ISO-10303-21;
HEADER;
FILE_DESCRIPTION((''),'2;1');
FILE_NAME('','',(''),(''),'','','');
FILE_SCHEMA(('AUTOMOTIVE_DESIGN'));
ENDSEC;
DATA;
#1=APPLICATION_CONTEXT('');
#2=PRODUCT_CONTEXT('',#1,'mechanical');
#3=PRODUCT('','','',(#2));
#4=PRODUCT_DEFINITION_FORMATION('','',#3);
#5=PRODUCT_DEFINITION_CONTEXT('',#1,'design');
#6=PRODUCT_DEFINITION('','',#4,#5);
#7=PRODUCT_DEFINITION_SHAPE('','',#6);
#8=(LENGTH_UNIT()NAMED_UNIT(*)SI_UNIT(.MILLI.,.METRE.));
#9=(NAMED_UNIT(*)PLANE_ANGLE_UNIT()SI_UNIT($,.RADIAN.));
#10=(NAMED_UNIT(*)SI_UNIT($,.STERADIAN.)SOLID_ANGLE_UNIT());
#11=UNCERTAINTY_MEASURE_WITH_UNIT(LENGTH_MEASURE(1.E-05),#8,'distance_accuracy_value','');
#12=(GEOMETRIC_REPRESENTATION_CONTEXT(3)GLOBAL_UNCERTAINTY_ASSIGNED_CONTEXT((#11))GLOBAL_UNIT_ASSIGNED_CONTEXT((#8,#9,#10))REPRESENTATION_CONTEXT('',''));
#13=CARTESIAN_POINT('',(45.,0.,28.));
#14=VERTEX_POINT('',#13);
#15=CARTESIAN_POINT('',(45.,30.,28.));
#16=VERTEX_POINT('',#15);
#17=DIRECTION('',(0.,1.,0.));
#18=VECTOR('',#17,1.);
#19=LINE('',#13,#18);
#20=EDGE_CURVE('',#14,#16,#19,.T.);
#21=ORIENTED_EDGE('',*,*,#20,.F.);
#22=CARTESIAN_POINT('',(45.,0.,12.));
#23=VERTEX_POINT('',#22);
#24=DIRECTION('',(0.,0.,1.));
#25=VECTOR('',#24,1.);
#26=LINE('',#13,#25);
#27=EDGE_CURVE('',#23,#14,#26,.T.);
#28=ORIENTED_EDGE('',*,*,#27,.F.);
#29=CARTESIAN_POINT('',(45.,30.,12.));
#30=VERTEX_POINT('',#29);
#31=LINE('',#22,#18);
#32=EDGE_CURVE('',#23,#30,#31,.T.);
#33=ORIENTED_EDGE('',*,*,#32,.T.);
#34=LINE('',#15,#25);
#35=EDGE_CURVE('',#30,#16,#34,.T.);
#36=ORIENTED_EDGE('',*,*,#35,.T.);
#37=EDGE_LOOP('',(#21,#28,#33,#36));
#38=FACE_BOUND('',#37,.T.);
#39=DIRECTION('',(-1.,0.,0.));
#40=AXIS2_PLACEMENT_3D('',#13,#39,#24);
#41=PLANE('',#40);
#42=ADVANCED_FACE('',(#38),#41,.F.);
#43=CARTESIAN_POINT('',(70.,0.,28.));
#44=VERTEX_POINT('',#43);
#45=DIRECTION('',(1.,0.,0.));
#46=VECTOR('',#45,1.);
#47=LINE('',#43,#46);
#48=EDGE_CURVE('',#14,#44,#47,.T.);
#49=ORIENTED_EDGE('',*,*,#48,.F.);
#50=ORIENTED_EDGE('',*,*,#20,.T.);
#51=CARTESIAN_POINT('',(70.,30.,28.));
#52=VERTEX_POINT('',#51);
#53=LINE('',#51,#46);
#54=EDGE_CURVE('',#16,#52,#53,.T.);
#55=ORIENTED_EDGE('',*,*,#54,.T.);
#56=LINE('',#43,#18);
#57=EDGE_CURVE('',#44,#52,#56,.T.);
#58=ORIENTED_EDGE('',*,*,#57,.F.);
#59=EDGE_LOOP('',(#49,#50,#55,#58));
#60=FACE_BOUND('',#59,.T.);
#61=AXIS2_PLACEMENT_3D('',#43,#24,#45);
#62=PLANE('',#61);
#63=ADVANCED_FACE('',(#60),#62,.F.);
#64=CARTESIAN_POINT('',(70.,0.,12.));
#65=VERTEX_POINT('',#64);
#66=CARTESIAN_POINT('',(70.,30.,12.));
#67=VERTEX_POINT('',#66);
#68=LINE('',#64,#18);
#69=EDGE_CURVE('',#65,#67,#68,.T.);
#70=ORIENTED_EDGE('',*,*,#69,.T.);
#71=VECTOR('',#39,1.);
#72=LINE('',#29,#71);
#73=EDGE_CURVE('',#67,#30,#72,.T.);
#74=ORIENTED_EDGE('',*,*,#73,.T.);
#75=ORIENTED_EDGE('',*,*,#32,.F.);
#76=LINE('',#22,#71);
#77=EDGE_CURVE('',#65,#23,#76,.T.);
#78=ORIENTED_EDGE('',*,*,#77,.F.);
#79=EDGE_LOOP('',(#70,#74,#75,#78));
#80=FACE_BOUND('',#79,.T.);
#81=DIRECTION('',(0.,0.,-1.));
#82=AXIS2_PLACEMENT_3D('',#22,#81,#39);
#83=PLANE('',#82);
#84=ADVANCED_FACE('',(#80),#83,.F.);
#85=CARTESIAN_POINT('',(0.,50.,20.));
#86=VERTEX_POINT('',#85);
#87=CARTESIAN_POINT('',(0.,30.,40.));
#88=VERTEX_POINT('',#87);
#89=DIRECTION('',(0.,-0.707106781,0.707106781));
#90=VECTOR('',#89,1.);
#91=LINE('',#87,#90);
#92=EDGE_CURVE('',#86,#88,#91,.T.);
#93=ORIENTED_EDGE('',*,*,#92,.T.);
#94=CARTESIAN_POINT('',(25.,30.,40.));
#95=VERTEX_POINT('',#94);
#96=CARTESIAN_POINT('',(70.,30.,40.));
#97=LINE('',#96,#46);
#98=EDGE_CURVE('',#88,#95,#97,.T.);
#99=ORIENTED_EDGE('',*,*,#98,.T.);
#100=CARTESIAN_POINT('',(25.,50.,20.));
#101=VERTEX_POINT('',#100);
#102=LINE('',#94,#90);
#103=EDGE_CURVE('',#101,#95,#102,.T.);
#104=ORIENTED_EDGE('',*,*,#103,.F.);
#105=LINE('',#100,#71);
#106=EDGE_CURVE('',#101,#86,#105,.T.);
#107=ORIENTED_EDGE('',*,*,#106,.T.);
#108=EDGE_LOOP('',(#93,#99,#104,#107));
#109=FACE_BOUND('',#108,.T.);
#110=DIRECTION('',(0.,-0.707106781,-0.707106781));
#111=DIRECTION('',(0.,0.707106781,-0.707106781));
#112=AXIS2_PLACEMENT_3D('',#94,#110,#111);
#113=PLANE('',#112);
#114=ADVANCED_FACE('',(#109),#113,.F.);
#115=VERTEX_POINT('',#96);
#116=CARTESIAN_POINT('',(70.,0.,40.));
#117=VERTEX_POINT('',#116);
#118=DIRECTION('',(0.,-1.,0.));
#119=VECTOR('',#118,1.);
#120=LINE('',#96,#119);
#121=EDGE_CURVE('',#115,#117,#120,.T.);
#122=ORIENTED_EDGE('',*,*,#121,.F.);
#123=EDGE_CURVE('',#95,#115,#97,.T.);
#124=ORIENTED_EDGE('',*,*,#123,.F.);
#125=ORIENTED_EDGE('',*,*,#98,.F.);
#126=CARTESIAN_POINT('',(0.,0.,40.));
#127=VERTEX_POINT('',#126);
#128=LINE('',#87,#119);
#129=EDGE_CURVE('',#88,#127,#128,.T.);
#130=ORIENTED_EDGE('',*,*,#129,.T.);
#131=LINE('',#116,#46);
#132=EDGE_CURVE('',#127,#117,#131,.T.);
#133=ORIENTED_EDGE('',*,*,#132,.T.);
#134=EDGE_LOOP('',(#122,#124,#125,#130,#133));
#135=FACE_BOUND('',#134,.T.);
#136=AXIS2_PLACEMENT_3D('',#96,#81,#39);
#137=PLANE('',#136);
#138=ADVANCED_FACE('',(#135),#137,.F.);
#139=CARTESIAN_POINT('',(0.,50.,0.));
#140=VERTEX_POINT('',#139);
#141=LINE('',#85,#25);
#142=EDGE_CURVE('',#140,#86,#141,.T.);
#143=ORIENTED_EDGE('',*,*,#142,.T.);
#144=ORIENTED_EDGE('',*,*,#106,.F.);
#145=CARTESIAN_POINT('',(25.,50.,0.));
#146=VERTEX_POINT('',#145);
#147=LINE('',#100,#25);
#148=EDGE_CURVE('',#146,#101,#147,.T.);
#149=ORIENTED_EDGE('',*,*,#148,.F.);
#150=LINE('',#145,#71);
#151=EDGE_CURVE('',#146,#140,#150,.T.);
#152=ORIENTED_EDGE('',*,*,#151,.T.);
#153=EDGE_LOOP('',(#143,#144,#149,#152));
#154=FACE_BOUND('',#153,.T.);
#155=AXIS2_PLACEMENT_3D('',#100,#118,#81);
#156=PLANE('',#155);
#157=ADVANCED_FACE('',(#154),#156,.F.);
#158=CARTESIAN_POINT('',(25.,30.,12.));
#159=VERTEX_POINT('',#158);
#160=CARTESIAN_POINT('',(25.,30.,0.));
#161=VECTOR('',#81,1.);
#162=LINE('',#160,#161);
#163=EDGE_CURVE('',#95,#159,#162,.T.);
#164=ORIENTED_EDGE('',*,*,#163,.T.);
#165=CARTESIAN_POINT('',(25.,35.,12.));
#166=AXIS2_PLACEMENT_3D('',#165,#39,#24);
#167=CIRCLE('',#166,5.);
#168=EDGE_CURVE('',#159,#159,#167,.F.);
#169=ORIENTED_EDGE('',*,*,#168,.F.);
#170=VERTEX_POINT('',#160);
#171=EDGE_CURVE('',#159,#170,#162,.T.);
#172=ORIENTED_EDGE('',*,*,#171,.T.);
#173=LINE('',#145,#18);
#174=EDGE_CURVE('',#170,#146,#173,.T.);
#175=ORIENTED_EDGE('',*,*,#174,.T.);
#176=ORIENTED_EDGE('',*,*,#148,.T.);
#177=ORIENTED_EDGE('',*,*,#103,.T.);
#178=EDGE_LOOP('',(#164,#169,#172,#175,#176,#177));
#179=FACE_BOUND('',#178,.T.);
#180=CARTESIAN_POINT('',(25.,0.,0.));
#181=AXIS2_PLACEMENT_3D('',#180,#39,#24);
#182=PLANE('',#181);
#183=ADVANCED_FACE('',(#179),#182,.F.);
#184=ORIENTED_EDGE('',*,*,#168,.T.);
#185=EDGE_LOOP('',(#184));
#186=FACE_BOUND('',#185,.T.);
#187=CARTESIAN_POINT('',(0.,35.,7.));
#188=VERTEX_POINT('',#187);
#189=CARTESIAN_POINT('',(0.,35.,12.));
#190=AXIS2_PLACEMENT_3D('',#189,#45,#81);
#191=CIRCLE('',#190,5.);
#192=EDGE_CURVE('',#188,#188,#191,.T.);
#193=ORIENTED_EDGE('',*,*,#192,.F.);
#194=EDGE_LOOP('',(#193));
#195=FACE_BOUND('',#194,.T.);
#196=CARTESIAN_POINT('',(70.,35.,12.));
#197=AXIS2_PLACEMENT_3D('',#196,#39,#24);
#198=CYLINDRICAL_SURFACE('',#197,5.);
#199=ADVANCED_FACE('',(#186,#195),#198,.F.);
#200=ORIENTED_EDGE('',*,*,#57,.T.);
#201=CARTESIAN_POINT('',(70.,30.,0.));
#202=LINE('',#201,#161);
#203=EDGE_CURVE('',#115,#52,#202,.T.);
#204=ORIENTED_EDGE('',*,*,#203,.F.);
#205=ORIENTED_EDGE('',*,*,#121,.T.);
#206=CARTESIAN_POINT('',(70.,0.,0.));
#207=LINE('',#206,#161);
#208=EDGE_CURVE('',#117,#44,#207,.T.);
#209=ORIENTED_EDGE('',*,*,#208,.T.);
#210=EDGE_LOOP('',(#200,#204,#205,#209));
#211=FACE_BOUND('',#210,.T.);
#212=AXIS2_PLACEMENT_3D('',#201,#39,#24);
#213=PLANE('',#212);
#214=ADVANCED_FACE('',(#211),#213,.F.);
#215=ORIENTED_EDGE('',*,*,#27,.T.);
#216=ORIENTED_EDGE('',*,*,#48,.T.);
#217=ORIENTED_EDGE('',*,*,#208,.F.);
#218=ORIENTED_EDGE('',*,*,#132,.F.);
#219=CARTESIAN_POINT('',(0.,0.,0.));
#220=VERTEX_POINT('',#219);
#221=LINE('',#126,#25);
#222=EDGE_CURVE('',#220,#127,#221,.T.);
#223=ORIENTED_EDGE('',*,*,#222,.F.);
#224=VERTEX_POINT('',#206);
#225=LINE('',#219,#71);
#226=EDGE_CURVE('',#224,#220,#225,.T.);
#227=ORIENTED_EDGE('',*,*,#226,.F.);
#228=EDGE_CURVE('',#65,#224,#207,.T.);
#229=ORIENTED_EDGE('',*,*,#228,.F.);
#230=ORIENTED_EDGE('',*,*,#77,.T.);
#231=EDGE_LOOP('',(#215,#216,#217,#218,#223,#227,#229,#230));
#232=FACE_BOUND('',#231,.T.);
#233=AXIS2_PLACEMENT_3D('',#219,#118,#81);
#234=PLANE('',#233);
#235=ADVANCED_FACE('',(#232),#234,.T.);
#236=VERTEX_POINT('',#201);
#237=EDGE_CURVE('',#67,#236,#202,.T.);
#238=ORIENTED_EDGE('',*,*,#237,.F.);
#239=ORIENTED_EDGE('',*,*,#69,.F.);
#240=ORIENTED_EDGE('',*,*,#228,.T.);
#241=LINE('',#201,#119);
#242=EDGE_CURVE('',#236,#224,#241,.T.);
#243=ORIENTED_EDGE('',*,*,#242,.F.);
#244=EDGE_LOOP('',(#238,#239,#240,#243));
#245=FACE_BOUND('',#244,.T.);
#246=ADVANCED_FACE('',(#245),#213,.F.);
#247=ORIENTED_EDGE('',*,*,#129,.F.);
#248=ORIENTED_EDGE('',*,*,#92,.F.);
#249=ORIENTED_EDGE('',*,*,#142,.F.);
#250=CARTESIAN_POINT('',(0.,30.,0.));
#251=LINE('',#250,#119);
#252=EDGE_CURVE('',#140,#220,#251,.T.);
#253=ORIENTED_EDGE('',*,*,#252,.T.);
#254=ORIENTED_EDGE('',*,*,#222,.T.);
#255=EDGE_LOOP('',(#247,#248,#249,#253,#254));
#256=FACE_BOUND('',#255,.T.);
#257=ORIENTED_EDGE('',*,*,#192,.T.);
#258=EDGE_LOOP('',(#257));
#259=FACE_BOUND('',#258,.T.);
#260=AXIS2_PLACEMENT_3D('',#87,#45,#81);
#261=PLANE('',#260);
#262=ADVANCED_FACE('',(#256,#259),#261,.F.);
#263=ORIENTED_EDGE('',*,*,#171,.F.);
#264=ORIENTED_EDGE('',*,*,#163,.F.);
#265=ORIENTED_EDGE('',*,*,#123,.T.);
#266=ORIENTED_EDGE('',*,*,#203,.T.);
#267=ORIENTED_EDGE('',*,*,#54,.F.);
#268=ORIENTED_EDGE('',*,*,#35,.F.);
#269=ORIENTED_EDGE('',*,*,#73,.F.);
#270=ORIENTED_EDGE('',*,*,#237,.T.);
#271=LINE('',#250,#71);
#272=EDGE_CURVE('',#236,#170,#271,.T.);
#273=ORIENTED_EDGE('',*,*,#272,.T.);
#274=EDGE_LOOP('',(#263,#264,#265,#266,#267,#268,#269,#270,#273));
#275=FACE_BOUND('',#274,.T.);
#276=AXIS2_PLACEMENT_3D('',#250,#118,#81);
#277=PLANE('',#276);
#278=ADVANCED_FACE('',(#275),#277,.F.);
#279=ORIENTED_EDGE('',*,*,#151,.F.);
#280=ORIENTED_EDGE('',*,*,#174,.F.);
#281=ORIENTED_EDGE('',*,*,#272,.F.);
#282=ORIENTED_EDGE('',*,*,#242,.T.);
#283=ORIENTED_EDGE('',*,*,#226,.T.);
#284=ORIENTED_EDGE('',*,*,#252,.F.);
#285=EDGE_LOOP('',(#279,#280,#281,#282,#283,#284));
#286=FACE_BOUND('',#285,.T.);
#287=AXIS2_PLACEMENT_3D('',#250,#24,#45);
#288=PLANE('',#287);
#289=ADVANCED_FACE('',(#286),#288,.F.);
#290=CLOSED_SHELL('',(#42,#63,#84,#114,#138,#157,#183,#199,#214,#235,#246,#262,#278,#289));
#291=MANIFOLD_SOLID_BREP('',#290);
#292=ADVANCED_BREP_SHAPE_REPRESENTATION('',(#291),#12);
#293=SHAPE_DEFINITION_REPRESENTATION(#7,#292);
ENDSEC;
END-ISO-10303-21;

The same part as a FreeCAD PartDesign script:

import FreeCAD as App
import Part
import Sketcher
Q = App.Units.Quantity

doc = App.newDocument("Part")
params = doc.addObject("Spreadsheet::Sheet", "Params")
for row, (alias, value) in enumerate([
    ("sketch1_width", "70 mm"),
    ("sketch1_height", "40 mm"),
    ("pad1_length", "30 mm"),
    ("sketch2_width", "25 mm"),
    ("sketch2_height", "16 mm"),
    ("sketch3_width", "50 mm"),
    ("sketch3_width2", "30 mm"),
    ("sketch3_height", "40 mm"),
    ("sketch3_height2", "20 mm"),
    ("pad2_length", "25 mm"),
    ("sketch4_diameter", "10 mm"),
], start=1):
    params.set(f"A{row}", alias)
    params.set(f"B{row}", "=" + value)
    params.setAlias(f"B{row}", alias)

body = doc.addObject("PartDesign::Body", "Body")

# Sketch on XZ plane
sketch1 = body.newObject("Sketcher::SketchObject", "Sketch")
sketch1.AttachmentSupport = (doc.getObject("XZ_Plane"), [""])
sketch1.MapMode = "FlatFace"
sketch1.addGeometry(Part.LineSegment(App.Vector(0, 0, 0), App.Vector(0, 40, 0)), False)
sketch1.addGeometry(Part.LineSegment(App.Vector(0, 40, 0), App.Vector(70, 40, 0)), False)
sketch1.addGeometry(Part.LineSegment(App.Vector(70, 40, 0), App.Vector(70, 0, 0)), False)
sketch1.addGeometry(Part.LineSegment(App.Vector(70, 0, 0), App.Vector(0, 0, 0)), False)
sketch1.addConstraint(Sketcher.Constraint("Coincident", 0, 2, 1, 1))
sketch1.addConstraint(Sketcher.Constraint("Coincident", 1, 2, 2, 1))
sketch1.addConstraint(Sketcher.Constraint("Coincident", 2, 2, 3, 1))
sketch1.addConstraint(Sketcher.Constraint("Coincident", 3, 2, 0, 1))
sketch1.addConstraint(Sketcher.Constraint("Vertical", 0))
sketch1.addConstraint(Sketcher.Constraint("Horizontal", 1))
sketch1.addConstraint(Sketcher.Constraint("Vertical", 2))
sketch1.addConstraint(Sketcher.Constraint("Horizontal", 3))
sketch1.addConstraint(Sketcher.Constraint("Coincident", 3, 2, -1, 1))
sketch1.addConstraint(Sketcher.Constraint("DistanceX", 1, 1, 1, 2, Q("70 mm")))
sketch1.addConstraint(Sketcher.Constraint("DistanceY", 0, 1, 0, 2, Q("40 mm")))
sketch1.setExpression("Constraints[9]", "Params.sketch1_width")
sketch1.setExpression("Constraints[10]", "Params.sketch1_height")
pad1 = body.newObject("PartDesign::Pad", "Pad")
pad1.Profile = sketch1
pad1.setExpression("Length", "Params.pad1_length")
pad1.Reversed = True

# Sketch on XZ plane
sketch2 = body.newObject("Sketcher::SketchObject", "Sketch001")
sketch2.AttachmentSupport = (doc.getObject("XZ_Plane"), [""])
sketch2.MapMode = "FlatFace"
sketch2.AttachmentOffset = App.Placement(App.Vector(0, 0, -30), App.Rotation())
sketch2.addGeometry(Part.LineSegment(App.Vector(45, 12, 0), App.Vector(45, 28, 0)), False)
sketch2.addGeometry(Part.LineSegment(App.Vector(45, 28, 0), App.Vector(70, 28, 0)), False)
sketch2.addGeometry(Part.LineSegment(App.Vector(70, 28, 0), App.Vector(70, 12, 0)), False)
sketch2.addGeometry(Part.LineSegment(App.Vector(70, 12, 0), App.Vector(45, 12, 0)), False)
sketch2.addConstraint(Sketcher.Constraint("Coincident", 0, 2, 1, 1))
sketch2.addConstraint(Sketcher.Constraint("Coincident", 1, 2, 2, 1))
sketch2.addConstraint(Sketcher.Constraint("Coincident", 2, 2, 3, 1))
sketch2.addConstraint(Sketcher.Constraint("Coincident", 3, 2, 0, 1))
sketch2.addConstraint(Sketcher.Constraint("Vertical", 0))
sketch2.addConstraint(Sketcher.Constraint("Horizontal", 1))
sketch2.addConstraint(Sketcher.Constraint("Vertical", 2))
sketch2.addConstraint(Sketcher.Constraint("Horizontal", 3))
sketch2.addConstraint(Sketcher.Constraint("DistanceX", 1, 1, 1, 2, Q("25 mm")))
sketch2.addConstraint(Sketcher.Constraint("DistanceY", 0, 1, 0, 2, Q("16 mm")))
sketch2.addConstraint(Sketcher.Constraint("DistanceX", -1, 1, 0, 2, Q("45 mm")))
sketch2.addConstraint(Sketcher.Constraint("DistanceY", -1, 1, 0, 2, Q("28 mm")))
sketch2.setExpression("Constraints[8]", "Params.sketch2_width")
sketch2.setExpression("Constraints[9]", "Params.sketch2_height")
pocket1 = body.newObject("PartDesign::Pocket", "Pocket")
pocket1.Profile = sketch2
pocket1.Type = "ThroughAll"
pocket1.Reversed = True

# Sketch on YZ plane
sketch3 = body.newObject("Sketcher::SketchObject", "Sketch002")
sketch3.AttachmentSupport = (doc.getObject("YZ_Plane"), [""])
sketch3.MapMode = "FlatFace"
sketch3.addGeometry(Part.LineSegment(App.Vector(0, 40, 0), App.Vector(0, 0, 0)), False)
sketch3.addGeometry(Part.LineSegment(App.Vector(0, 0, 0), App.Vector(50, 0, 0)), False)
sketch3.addGeometry(Part.LineSegment(App.Vector(50, 0, 0), App.Vector(50, 20, 0)), False)
sketch3.addGeometry(Part.LineSegment(App.Vector(50, 20, 0), App.Vector(30, 40, 0)), False)
sketch3.addGeometry(Part.LineSegment(App.Vector(30, 40, 0), App.Vector(0, 40, 0)), False)
sketch3.addConstraint(Sketcher.Constraint("Coincident", 0, 2, 1, 1))
sketch3.addConstraint(Sketcher.Constraint("Coincident", 1, 2, 2, 1))
sketch3.addConstraint(Sketcher.Constraint("Coincident", 2, 2, 3, 1))
sketch3.addConstraint(Sketcher.Constraint("Coincident", 3, 2, 4, 1))
sketch3.addConstraint(Sketcher.Constraint("Coincident", 4, 2, 0, 1))
sketch3.addConstraint(Sketcher.Constraint("Vertical", 0))
sketch3.addConstraint(Sketcher.Constraint("Horizontal", 1))
sketch3.addConstraint(Sketcher.Constraint("Vertical", 2))
sketch3.addConstraint(Sketcher.Constraint("Horizontal", 4))
sketch3.addConstraint(Sketcher.Constraint("Coincident", 0, 2, -1, 1))
sketch3.addConstraint(Sketcher.Constraint("DistanceX", 1, 1, 1, 2, Q("50 mm")))
sketch3.addConstraint(Sketcher.Constraint("DistanceX", 4, 2, 4, 1, Q("30 mm")))
sketch3.addConstraint(Sketcher.Constraint("DistanceY", 0, 2, 0, 1, Q("40 mm")))
sketch3.addConstraint(Sketcher.Constraint("DistanceY", 2, 1, 2, 2, Q("20 mm")))
sketch3.setExpression("Constraints[10]", "Params.sketch3_width")
sketch3.setExpression("Constraints[11]", "Params.sketch3_width2")
sketch3.setExpression("Constraints[12]", "Params.sketch3_height")
sketch3.setExpression("Constraints[13]", "Params.sketch3_height2")
pad2 = body.newObject("PartDesign::Pad", "Pad001")
pad2.Profile = sketch3
pad2.setExpression("Length", "Params.pad2_length")

# Sketch on YZ plane
sketch4 = body.newObject("Sketcher::SketchObject", "Sketch003")
sketch4.AttachmentSupport = (doc.getObject("YZ_Plane"), [""])
sketch4.MapMode = "FlatFace"
sketch4.addGeometry(Part.Circle(App.Vector(35, 12, 0), App.Vector(0, 0, 1), 5), False)
sketch4.addConstraint(Sketcher.Constraint("Diameter", 0, Q("10 mm")))
sketch4.addConstraint(Sketcher.Constraint("DistanceX", -1, 1, 0, 3, Q("35 mm")))
sketch4.addConstraint(Sketcher.Constraint("DistanceY", -1, 1, 0, 3, Q("12 mm")))
sketch4.setExpression("Constraints[0]", "Params.sketch4_diameter")
pocket2 = body.newObject("PartDesign::Pocket", "Pocket001")
pocket2.Profile = sketch4
pocket2.Type = "ThroughAll"
pocket2.Reversed = True

doc.recompute()
